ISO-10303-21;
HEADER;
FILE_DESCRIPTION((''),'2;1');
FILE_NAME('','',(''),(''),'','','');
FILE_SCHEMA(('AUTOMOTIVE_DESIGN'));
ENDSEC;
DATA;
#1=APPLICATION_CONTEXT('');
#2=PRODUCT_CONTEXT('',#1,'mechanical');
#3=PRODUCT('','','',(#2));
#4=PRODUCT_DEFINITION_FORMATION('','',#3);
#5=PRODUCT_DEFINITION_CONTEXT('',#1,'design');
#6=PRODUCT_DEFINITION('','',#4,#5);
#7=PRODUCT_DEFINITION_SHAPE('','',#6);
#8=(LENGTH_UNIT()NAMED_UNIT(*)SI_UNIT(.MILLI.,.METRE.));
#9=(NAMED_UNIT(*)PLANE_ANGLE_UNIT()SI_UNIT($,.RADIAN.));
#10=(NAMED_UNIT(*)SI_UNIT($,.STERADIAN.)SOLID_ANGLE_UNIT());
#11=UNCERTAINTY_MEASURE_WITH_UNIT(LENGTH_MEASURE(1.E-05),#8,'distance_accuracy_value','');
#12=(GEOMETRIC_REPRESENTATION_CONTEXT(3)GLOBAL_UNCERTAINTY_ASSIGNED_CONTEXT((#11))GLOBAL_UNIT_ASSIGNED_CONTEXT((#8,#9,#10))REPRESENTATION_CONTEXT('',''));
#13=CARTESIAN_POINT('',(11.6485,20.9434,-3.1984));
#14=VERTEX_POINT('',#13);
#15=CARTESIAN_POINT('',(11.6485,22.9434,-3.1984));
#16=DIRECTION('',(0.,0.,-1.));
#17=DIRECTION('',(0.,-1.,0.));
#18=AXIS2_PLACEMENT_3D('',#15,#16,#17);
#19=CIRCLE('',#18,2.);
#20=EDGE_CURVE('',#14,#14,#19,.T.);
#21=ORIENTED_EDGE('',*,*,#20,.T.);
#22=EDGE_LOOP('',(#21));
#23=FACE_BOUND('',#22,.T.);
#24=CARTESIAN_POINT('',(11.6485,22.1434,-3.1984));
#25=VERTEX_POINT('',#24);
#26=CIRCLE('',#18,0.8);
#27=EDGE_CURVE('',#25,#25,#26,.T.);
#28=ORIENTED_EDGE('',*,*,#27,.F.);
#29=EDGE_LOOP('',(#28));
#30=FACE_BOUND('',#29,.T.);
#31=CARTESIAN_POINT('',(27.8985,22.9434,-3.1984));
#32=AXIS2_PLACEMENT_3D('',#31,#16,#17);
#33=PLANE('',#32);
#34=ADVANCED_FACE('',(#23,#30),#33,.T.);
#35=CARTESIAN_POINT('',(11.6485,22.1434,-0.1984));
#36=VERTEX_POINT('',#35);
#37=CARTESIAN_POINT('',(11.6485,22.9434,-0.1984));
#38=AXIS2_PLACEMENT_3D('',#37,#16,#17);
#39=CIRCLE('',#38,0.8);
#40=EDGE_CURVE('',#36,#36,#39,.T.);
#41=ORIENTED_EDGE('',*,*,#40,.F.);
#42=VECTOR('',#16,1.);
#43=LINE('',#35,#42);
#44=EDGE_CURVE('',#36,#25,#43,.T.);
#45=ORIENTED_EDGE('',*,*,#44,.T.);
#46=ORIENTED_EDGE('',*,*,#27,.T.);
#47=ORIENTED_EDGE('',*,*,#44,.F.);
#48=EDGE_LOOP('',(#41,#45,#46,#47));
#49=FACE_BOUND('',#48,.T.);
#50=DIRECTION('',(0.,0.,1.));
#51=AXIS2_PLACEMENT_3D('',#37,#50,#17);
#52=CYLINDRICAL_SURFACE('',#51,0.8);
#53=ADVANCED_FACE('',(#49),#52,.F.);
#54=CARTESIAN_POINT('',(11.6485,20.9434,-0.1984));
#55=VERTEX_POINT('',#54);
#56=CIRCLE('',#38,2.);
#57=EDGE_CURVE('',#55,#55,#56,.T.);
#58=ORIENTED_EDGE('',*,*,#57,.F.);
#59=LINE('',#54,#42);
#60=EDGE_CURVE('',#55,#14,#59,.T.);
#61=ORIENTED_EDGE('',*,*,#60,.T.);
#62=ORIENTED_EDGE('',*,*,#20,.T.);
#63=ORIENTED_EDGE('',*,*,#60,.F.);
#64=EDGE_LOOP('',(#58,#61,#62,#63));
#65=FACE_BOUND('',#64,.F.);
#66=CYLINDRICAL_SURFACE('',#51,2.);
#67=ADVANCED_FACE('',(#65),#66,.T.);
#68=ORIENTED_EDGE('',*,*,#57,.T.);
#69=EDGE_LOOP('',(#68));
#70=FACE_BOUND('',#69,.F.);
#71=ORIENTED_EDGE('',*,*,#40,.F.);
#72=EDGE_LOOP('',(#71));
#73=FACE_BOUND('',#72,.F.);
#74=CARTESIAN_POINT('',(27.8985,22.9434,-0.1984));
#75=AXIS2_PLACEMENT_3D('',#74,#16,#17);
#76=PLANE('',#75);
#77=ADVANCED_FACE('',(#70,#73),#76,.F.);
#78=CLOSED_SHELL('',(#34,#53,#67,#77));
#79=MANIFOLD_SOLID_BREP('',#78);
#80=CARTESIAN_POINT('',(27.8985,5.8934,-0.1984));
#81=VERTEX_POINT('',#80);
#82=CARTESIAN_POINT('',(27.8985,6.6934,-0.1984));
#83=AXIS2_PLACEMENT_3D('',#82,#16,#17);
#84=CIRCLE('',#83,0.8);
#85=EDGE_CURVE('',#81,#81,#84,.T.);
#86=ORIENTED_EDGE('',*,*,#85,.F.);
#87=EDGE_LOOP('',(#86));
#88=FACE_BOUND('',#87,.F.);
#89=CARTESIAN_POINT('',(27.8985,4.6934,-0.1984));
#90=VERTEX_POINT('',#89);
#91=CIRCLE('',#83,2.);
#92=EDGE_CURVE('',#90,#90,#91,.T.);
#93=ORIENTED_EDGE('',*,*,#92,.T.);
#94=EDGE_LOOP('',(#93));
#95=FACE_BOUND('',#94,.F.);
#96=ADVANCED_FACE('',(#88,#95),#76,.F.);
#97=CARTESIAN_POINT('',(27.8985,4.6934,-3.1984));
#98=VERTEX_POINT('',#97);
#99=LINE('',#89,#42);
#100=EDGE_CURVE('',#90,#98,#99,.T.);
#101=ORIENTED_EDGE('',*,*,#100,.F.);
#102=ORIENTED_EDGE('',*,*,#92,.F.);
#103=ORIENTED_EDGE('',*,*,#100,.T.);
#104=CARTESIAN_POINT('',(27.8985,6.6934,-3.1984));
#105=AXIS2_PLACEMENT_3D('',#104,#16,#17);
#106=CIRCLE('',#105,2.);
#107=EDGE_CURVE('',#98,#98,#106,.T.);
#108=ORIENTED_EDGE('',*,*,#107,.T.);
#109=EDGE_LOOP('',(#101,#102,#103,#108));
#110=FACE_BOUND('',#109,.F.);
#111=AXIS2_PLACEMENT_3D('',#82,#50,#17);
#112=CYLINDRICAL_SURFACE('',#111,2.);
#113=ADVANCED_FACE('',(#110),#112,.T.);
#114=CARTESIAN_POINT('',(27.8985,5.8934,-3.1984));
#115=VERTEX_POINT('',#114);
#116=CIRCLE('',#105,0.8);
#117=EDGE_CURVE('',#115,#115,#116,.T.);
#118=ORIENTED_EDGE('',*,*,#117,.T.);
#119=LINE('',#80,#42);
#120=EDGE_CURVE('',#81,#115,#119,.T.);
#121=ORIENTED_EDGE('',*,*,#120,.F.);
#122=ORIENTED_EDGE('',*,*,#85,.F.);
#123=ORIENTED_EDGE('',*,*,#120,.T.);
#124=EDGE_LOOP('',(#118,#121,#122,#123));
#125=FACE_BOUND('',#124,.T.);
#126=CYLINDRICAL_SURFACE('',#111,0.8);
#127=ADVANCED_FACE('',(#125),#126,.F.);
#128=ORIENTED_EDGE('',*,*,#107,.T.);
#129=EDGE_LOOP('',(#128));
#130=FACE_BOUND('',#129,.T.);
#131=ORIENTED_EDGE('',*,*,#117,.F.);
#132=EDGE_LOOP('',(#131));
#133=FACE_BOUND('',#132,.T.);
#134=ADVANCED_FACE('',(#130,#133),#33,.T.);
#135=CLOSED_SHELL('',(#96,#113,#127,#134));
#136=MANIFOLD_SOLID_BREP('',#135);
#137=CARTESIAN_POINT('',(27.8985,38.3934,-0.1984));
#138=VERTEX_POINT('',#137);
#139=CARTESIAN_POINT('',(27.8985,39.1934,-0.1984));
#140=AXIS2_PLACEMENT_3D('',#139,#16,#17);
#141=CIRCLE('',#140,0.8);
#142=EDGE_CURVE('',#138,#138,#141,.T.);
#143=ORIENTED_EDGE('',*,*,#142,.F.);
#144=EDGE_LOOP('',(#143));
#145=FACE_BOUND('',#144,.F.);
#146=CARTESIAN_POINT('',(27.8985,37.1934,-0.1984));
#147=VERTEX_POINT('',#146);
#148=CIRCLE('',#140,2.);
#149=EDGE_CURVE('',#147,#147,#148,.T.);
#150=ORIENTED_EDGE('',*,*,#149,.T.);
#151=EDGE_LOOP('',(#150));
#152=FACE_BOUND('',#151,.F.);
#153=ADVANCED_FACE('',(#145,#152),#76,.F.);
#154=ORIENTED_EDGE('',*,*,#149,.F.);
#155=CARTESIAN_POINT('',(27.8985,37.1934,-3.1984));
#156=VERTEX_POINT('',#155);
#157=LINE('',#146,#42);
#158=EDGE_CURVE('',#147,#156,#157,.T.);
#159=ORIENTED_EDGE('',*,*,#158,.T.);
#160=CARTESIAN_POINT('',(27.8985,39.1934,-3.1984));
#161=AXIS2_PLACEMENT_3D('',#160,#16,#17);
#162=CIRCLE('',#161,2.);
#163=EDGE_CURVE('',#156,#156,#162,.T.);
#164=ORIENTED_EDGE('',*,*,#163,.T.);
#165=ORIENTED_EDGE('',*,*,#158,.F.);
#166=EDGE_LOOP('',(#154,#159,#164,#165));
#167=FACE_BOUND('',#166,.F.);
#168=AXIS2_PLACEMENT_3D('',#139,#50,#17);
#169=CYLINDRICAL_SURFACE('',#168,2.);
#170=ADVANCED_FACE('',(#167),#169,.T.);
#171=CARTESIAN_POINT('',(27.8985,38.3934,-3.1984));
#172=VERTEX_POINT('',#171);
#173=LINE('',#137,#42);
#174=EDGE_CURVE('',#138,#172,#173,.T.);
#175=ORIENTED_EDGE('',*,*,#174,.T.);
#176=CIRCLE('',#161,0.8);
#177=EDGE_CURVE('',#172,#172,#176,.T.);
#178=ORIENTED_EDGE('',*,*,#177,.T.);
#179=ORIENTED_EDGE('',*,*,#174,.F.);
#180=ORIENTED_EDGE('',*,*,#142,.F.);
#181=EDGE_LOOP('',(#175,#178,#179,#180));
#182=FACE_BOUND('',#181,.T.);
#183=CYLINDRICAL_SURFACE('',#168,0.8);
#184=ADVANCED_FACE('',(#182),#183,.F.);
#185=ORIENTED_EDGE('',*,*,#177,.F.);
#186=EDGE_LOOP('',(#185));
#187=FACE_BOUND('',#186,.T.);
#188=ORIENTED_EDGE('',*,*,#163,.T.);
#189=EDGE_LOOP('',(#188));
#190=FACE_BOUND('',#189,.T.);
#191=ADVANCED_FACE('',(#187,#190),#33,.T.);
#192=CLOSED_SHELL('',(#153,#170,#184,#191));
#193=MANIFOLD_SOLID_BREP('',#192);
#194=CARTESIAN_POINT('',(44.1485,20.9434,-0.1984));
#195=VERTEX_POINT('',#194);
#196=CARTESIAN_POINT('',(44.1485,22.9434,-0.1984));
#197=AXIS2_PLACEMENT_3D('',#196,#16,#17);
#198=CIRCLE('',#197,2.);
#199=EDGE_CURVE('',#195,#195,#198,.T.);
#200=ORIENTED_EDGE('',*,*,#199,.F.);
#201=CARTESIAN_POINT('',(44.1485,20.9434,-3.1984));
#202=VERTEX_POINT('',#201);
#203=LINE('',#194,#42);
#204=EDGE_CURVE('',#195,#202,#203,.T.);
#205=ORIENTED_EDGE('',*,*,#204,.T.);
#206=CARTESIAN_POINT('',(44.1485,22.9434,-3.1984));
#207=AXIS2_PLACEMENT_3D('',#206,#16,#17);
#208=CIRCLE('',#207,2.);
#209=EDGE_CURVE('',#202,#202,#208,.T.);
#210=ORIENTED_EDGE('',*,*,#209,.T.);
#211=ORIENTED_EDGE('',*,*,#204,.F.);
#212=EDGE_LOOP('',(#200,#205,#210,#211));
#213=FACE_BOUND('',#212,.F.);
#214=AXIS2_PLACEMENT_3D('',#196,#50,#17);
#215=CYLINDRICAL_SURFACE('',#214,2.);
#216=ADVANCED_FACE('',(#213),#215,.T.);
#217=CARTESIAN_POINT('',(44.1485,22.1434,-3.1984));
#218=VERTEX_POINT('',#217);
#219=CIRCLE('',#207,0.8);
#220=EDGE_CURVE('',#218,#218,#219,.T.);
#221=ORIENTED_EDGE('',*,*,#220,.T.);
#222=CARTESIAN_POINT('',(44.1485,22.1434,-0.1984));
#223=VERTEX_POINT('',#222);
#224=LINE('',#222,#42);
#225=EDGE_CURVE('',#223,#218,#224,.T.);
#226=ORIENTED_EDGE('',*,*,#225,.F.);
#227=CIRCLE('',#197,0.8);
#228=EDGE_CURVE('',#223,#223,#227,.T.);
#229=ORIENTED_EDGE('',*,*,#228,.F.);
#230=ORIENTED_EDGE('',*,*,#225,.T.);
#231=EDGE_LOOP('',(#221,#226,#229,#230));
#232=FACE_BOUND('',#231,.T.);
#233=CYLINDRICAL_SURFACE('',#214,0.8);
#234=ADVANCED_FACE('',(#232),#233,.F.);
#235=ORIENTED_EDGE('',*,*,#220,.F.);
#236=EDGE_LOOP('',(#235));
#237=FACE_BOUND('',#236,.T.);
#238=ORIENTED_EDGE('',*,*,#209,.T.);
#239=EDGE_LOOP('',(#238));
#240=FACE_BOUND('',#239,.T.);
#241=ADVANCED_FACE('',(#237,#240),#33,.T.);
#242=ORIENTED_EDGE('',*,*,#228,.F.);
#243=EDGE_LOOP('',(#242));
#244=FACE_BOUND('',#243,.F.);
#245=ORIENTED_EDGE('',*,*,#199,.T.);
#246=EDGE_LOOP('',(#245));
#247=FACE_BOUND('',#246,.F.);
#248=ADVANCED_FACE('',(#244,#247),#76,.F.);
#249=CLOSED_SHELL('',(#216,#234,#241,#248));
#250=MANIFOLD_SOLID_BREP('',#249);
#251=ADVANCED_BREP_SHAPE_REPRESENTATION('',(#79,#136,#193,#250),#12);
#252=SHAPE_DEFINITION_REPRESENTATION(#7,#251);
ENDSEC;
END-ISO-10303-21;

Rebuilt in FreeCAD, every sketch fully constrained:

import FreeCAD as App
import Part
import Sketcher

V = App.Vector

doc = App.newDocument("Part")
body = doc.addObject("PartDesign::Body", "Body")
body.AllowCompound = True

# Sketch on XY plane
sketch1 = body.newObject("Sketcher::SketchObject", "Sketch")
sketch1.AttachmentSupport = (doc.getObject("XY_Plane"), [""])
sketch1.MapMode = "FlatFace"
sketch1.AttachmentOffset = App.Placement(V(0, 0, -0.1984), App.Rotation())
sketch1.addGeometry([
    Part.Circle(V(27.9, 39.2, 0), V(0, 0, 1), 2),  # 0
    Part.Circle(V(27.9, 39.2, 0), V(0, 0, 1), 0.8),  # 1
    Part.Circle(V(11.6, 22.9, 0), V(0, 0, 1), 2),  # 2
    Part.Circle(V(11.6, 22.9, 0), V(0, 0, 1), 0.8),  # 3
    Part.Circle(V(44.1, 22.9, 0), V(0, 0, 1), 2),  # 4
    Part.Circle(V(44.1, 22.9, 0), V(0, 0, 1), 0.8),  # 5
    Part.Circle(V(27.9, 6.7, 0), V(0, 0, 1), 2),  # 6
    Part.Circle(V(27.9, 6.7, 0), V(0, 0, 1), 0.8),  # 7
], False)
sketch1.addConstraint([
    Sketcher.Constraint("Coincident", 1, 3, 0, 3),
    Sketcher.Constraint("Coincident", 3, 3, 2, 3),
    Sketcher.Constraint("Coincident", 5, 3, 4, 3),
    Sketcher.Constraint("Coincident", 7, 3, 6, 3),
    Sketcher.Constraint("Equal", 0, 2),
    Sketcher.Constraint("Equal", 1, 3),
    Sketcher.Constraint("Equal", 2, 4),
    Sketcher.Constraint("Equal", 3, 5),
    Sketcher.Constraint("Equal", 4, 6),
    Sketcher.Constraint("Equal", 5, 7),
    Sketcher.Constraint("Horizontal", 3, 3, 4, 3),
    Sketcher.Constraint("Vertical", 1, 3, 6, 3),
    Sketcher.Constraint("Diameter", 0, 4.0),
    Sketcher.Constraint("Diameter", 1, 1.6),
    Sketcher.Constraint("DistanceX", 2, 3, 4, 3, 32.5),
    Sketcher.Constraint("DistanceY", 6, 3, 0, 3, 32.5),
    Sketcher.Constraint("DistanceX", 2, 3, 0, 3, 16.25),
    Sketcher.Constraint("DistanceY", 2, 3, 0, 3, 16.25),
    Sketcher.Constraint("DistanceX", -1, 1, 0, 3, 27.8985),
    Sketcher.Constraint("DistanceY", -1, 1, 0, 3, 39.1934),
])
pad1 = body.newObject("PartDesign::Pad", "Pad")
pad1.Profile = sketch1
pad1.Length = 3
pad1.Reversed = True

doc.recompute()
